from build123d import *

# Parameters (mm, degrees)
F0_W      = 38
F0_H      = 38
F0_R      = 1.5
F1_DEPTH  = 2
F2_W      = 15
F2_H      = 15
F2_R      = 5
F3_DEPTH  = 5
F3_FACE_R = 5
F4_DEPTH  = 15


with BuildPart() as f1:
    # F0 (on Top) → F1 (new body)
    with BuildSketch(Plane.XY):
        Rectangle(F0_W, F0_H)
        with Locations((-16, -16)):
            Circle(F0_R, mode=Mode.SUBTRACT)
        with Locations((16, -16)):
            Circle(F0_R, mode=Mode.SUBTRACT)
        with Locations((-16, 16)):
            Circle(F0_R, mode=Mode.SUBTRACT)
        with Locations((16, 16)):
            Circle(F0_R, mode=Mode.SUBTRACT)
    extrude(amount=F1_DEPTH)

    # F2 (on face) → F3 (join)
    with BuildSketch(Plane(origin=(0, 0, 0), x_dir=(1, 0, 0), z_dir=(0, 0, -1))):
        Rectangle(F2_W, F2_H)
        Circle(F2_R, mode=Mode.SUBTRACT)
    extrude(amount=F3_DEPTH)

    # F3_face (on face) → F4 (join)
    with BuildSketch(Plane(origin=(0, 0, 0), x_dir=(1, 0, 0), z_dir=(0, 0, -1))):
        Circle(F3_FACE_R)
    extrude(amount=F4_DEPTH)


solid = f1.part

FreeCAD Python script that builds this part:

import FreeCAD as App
import Part
import Sketcher

V = App.Vector


def add_polygon(sketch, points):
    """Adds a closed chain of lines whose ends are joined by coincident constraints."""
    first, n = sketch.GeometryCount, len(points)
    for a, b in zip(points, points[1:] + points[:1]):
        sketch.addGeometry(Part.LineSegment(App.Vector(*a, 0), App.Vector(*b, 0)), False)
    for i in range(n):
        sketch.addConstraint(Sketcher.Constraint("Coincident", first + i, 2, first + (i + 1) % n, 1))

doc = App.newDocument("Part")
body = doc.addObject("PartDesign::Body", "Body")

sketch1 = doc.addObject("Sketcher::SketchObject", "Sketch")
body.addObject(sketch1)
sketch1.AttachmentSupport = (doc.XY_Plane, [""])
sketch1.MapMode = "FlatFace"
add_polygon(sketch1, [(-19, 19), (-19, -19), (19, -19), (19, 19)])
sketch1.addGeometry(Part.Circle(V(-16, -16, 0), V(0, 0, 1), 1.5), False)
sketch1.addGeometry(Part.Circle(V(16, -16, 0), V(0, 0, 1), 1.5), False)
sketch1.addGeometry(Part.Circle(V(-16, 16, 0), V(0, 0, 1), 1.5), False)
sketch1.addGeometry(Part.Circle(V(16, 16, 0), V(0, 0, 1), 1.5), False)
sketch1.addConstraint(Sketcher.Constraint("Vertical", 0))
sketch1.addConstraint(Sketcher.Constraint("Horizontal", 1))
sketch1.addConstraint(Sketcher.Constraint("Vertical", 2))
sketch1.addConstraint(Sketcher.Constraint("Horizontal", 3))
sketch1.addConstraint(Sketcher.Constraint("Equal", 4, 5))
sketch1.addConstraint(Sketcher.Constraint("Equal", 5, 6))
sketch1.addConstraint(Sketcher.Constraint("Equal", 6, 7))
sketch1.addConstraint(Sketcher.Constraint("Symmetric", 5, 3, 6, 3, -1, 1))
sketch1.addConstraint(Sketcher.Constraint("Symmetric", 4, 3, 7, 3, -1, 1))
sketch1.addConstraint(Sketcher.Constraint("Symmetric", 0, 2, 2, 2, -1, 1))
sketch1.addConstraint(Sketcher.Constraint("Symmetric", 4, 3, 5, 3, -2))
sketch1.addConstraint(Sketcher.Constraint("Equal", 3, 0))
sketch1.addConstraint(Sketcher.Constraint("Diameter", 4, 3.0))
sketch1.addConstraint(Sketcher.Constraint("DistanceX", 1, 1, 1, 2, 38.0))
sketch1.addConstraint(Sketcher.Constraint("DistanceX", 4, 3, -1, 1, 16.0))
sketch1.addConstraint(Sketcher.Constraint("DistanceY", 4, 3, -1, 1, 16.0))
pad1 = doc.addObject("PartDesign::Pad", "Pad")
body.addObject(pad1)
pad1.Profile = sketch1
pad1.Length = 2

sketch2 = doc.addObject("Sketcher::SketchObject", "Sketch001")
body.addObject(sketch2)
sketch2.AttachmentSupport = (doc.XY_Plane, [""])
sketch2.MapMode = "FlatFace"
add_polygon(sketch2, [(-7.5, -7.5), (-7.5, 7.5), (7.5, 7.5), (7.5, -7.5)])
sketch2.addGeometry(Part.Circle(V(0, 0, 0), V(0, 0, 1), 5), False)
sketch2.addConstraint(Sketcher.Constraint("Vertical", 0))
sketch2.addConstraint(Sketcher.Constraint("Horizontal", 1))
sketch2.addConstraint(Sketcher.Constraint("Vertical", 2))
sketch2.addConstraint(Sketcher.Constraint("Horizontal", 3))
sketch2.addConstraint(Sketcher.Constraint("Coincident", 4, 3, -1, 1))
sketch2.addConstraint(Sketcher.Constraint("Symmetric", 0, 2, 2, 2, -1, 1))
sketch2.addConstraint(Sketcher.Constraint("Equal", 3, 0))
sketch2.addConstraint(Sketcher.Constraint("Diameter", 4, 10.0))
sketch2.addConstraint(Sketcher.Constraint("DistanceX", 1, 1, 1, 2, 15.0))
pad2 = doc.addObject("PartDesign::Pad", "Pad001")
body.addObject(pad2)
pad2.Profile = sketch2
pad2.Length = 5
pad2.Reversed = True

sketch3 = doc.addObject("Sketcher::SketchObject", "Sketch002")
body.addObject(sketch3)
sketch3.AttachmentSupport = (doc.XY_Plane, [""])
sketch3.MapMode = "FlatFace"
sketch3.addGeometry(Part.Circle(V(0, 0, 0), V(0, 0, 1), 5), False)
sketch3.addConstraint(Sketcher.Constraint("Coincident", 0, 3, -1, 1))
sketch3.addConstraint(Sketcher.Constraint("Diameter", 0, 10.0))
pad3 = doc.addObject("PartDesign::Pad", "Pad002")
body.addObject(pad3)
pad3.Profile = sketch3
pad3.Length = 15
pad3.Reversed = True

doc.recompute()
